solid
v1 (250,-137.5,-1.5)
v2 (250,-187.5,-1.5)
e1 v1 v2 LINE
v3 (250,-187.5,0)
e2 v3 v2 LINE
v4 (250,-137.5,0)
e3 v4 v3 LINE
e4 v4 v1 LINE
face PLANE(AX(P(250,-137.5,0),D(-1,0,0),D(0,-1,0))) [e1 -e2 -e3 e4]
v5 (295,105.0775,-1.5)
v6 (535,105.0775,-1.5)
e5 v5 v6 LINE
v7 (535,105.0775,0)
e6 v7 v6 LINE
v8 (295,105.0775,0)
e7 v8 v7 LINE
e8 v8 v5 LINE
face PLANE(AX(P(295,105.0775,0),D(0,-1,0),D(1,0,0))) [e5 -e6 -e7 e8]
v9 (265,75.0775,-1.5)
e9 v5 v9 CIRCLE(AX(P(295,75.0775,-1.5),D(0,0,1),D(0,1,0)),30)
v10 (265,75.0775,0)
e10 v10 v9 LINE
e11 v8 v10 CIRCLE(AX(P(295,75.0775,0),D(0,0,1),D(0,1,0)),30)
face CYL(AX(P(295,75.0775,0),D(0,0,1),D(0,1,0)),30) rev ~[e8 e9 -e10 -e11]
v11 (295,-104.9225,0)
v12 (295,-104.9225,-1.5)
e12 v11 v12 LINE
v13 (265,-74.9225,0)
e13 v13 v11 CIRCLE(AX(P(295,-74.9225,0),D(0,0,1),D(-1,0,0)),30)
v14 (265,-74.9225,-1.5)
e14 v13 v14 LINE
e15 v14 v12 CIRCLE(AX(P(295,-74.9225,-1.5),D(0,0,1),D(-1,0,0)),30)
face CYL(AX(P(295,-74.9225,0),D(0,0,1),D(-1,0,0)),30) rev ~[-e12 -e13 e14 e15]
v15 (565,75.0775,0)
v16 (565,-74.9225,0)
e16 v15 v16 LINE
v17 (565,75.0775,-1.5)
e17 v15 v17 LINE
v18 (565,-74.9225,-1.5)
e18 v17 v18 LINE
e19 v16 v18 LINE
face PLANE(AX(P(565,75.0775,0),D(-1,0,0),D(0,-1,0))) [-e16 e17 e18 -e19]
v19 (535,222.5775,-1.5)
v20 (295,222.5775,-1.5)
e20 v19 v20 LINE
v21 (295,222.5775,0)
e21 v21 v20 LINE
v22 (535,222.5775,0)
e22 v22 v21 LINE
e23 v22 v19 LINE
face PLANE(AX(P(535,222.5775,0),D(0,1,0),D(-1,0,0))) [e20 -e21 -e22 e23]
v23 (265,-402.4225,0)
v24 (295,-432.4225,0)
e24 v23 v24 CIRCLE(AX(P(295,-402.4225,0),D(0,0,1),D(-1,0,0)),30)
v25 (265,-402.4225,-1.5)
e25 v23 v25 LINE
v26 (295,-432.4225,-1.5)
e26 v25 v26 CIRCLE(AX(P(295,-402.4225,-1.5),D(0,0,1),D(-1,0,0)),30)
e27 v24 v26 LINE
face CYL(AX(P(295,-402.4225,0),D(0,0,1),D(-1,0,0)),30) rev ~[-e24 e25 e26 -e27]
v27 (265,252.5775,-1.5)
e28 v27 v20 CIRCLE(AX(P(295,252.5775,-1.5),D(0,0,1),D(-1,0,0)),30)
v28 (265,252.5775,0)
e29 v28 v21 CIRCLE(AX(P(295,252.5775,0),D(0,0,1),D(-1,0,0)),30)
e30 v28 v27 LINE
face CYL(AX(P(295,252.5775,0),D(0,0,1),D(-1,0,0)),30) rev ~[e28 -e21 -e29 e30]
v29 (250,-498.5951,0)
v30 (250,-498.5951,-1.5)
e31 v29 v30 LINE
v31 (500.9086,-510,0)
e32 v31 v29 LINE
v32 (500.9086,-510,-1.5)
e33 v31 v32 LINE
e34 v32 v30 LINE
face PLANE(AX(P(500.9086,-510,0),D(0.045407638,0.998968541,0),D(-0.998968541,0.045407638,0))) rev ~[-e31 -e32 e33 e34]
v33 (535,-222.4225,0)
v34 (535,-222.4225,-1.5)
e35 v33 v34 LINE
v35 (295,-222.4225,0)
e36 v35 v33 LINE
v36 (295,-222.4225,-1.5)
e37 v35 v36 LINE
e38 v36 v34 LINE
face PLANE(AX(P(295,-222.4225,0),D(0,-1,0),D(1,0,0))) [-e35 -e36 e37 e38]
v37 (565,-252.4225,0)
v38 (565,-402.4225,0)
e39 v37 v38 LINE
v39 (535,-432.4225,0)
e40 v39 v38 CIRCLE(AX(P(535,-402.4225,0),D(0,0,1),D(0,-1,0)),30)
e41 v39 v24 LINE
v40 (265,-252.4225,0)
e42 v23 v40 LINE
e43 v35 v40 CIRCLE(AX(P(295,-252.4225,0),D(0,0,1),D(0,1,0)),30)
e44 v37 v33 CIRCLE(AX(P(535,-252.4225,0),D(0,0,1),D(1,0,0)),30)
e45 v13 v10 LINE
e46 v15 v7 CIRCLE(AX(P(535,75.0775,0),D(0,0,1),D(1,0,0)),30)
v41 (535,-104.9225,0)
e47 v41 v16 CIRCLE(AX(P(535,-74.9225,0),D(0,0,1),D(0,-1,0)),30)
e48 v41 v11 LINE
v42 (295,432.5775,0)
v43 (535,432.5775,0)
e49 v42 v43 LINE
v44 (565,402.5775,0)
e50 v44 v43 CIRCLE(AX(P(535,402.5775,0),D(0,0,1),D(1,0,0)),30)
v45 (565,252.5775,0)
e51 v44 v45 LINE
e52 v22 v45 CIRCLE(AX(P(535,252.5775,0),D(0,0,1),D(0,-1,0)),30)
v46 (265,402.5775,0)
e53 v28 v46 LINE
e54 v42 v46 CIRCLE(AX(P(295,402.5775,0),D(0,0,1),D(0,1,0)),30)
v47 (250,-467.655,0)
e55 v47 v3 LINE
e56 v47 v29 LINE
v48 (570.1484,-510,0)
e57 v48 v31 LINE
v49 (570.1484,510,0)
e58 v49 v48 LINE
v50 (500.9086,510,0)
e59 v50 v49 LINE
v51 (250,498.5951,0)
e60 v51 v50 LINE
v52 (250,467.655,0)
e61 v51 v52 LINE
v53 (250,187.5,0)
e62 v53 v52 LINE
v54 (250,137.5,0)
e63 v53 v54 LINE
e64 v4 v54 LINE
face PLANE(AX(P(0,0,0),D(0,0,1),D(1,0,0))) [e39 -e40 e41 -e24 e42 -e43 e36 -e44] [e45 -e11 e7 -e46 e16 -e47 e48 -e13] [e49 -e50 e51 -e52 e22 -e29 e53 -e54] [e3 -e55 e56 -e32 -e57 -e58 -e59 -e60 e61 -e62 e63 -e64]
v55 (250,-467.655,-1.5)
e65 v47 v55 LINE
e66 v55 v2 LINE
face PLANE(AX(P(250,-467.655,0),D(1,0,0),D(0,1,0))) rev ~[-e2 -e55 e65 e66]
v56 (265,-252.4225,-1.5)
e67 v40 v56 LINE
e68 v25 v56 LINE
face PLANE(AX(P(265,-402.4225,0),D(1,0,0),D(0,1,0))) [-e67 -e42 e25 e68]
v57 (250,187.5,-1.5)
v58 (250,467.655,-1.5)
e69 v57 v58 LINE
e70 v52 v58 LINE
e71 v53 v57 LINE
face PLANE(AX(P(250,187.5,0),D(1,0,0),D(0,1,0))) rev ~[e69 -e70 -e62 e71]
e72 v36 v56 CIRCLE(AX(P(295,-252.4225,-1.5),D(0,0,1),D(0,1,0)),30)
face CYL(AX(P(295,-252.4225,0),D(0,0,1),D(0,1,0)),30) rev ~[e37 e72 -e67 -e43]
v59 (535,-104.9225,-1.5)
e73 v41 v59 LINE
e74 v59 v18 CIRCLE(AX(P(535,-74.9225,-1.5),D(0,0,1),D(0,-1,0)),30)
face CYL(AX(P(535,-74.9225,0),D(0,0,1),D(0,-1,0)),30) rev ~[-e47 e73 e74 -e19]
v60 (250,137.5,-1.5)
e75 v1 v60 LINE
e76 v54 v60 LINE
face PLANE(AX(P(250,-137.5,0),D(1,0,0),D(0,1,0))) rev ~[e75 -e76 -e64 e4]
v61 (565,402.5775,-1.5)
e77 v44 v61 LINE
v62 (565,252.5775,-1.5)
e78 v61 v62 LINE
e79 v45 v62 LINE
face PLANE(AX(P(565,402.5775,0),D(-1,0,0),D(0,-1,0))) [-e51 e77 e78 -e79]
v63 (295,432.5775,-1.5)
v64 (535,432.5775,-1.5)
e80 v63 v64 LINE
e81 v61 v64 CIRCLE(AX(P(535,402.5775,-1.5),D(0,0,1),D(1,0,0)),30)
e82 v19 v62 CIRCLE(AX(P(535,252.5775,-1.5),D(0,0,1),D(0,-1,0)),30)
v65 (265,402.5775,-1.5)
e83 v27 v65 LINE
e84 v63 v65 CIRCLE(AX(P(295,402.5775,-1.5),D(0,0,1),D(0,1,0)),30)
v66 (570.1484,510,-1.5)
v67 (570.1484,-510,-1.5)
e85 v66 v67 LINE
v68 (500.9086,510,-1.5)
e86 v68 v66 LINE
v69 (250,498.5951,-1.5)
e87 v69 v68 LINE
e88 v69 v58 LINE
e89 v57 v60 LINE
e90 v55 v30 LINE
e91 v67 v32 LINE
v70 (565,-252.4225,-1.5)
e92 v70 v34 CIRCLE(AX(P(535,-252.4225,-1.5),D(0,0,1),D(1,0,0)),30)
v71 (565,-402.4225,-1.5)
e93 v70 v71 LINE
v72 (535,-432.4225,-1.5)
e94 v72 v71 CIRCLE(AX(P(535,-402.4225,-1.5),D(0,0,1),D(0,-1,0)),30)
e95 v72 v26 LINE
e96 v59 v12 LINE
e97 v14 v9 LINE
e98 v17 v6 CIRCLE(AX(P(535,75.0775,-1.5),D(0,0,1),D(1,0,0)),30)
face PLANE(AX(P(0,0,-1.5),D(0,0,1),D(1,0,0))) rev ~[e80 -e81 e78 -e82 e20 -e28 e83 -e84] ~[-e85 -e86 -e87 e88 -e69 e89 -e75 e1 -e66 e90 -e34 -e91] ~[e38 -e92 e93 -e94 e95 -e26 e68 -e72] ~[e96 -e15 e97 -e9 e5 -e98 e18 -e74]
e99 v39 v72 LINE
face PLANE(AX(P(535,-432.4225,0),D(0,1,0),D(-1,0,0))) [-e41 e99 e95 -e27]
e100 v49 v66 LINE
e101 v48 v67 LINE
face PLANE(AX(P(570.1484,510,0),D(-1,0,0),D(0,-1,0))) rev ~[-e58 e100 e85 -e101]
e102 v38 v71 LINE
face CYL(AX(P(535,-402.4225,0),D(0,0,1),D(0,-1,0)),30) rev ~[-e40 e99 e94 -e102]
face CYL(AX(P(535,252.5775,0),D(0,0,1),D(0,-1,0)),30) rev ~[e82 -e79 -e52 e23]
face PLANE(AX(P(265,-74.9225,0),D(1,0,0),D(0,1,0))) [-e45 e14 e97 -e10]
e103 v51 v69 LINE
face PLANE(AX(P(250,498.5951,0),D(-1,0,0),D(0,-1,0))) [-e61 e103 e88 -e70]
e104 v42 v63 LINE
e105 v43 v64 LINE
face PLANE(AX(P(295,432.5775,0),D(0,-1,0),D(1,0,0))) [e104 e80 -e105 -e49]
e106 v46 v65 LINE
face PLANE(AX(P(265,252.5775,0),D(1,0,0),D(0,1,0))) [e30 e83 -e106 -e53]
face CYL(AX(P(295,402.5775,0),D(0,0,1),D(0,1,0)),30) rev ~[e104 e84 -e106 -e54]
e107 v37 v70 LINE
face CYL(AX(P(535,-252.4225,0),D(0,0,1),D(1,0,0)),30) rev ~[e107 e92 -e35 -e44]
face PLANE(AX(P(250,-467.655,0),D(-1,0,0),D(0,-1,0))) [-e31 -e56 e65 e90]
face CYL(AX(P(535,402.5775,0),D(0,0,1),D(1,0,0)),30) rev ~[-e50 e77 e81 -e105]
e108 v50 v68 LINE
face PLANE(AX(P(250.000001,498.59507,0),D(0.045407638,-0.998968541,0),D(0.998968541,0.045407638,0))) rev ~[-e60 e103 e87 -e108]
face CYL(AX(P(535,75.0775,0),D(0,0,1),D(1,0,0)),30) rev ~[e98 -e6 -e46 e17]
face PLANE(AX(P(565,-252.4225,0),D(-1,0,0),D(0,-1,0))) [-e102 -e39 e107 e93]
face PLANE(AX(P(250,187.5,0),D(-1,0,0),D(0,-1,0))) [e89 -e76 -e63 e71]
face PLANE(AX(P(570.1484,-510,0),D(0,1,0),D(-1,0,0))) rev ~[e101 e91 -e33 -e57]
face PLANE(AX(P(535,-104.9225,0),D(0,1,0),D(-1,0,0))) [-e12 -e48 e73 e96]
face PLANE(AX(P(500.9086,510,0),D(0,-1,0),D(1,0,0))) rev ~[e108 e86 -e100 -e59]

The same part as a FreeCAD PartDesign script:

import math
import FreeCAD as App
import Part
import Sketcher
Q = App.Units.Quantity


def add_polygon(sketch, points):
    """Adds a closed chain of lines whose ends are joined by coincident constraints."""
    first, n = sketch.GeometryCount, len(points)
    for a, b in zip(points, points[1:] + points[:1]):
        sketch.addGeometry(Part.LineSegment(App.Vector(*a, 0), App.Vector(*b, 0)), False)
    for i in range(n):
        sketch.addConstraint(Sketcher.Constraint("Coincident", first + i, 2, first + (i + 1) % n, 1))

doc = App.newDocument("Part")
body = doc.addObject("PartDesign::Body", "Body")

# Sketch on XY plane
sketch1 = body.newObject("Sketcher::SketchObject", "Sketch")
sketch1.AttachmentSupport = (doc.getObject("XY_Plane"), [""])
sketch1.MapMode = "FlatFace"
add_polygon(sketch1, [(250, 498.5951), (250.000001, -498.59507), (500.9086, -510), (570.1484, -510), (570.1484, 510), (500.9086, 510)])  # lines 0-5
sketch1.addGeometry(Part.ArcOfCircle(Part.Circle(App.Vector(535, -252.4225, 0), App.Vector(0, 0, 1), 30), math.radians(0), math.radians(90)), False)  # 6
sketch1.addGeometry(Part.LineSegment(App.Vector(565, -252.4225, 0), App.Vector(565, -402.4225, 0)), False)  # 7
sketch1.addGeometry(Part.ArcOfCircle(Part.Circle(App.Vector(535, -402.4225, 0), App.Vector(0, 0, 1), 30), math.radians(-90), math.radians(0)), False)  # 8
sketch1.addGeometry(Part.LineSegment(App.Vector(535, -432.4225, 0), App.Vector(295, -432.4225, 0)), False)  # 9
sketch1.addGeometry(Part.ArcOfCircle(Part.Circle(App.Vector(295, -402.4225, 0), App.Vector(0, 0, 1), 30), math.radians(180), math.radians(270)), False)  # 10
sketch1.addGeometry(Part.LineSegment(App.Vector(265, -402.4225, 0), App.Vector(265, -252.4225, 0)), False)  # 11
sketch1.addGeometry(Part.ArcOfCircle(Part.Circle(App.Vector(295, -252.4225, 0), App.Vector(0, 0, 1), 30), math.radians(90), math.radians(180)), False)  # 12
sketch1.addGeometry(Part.LineSegment(App.Vector(295, -222.4225, 0), App.Vector(535, -222.4225, 0)), False)  # 13
sketch1.addGeometry(Part.ArcOfCircle(Part.Circle(App.Vector(535, -74.9225, 0), App.Vector(0, 0, 1), 30), math.radians(-90), math.radians(0)), False)  # 14
sketch1.addGeometry(Part.LineSegment(App.Vector(535, -104.9225, 0), App.Vector(295, -104.9225, 0)), False)  # 15
sketch1.addGeometry(Part.ArcOfCircle(Part.Circle(App.Vector(295, -74.9225, 0), App.Vector(0, 0, 1), 30), math.radians(180), math.radians(270)), False)  # 16
sketch1.addGeometry(Part.LineSegment(App.Vector(265, -74.9225, 0), App.Vector(265, 75.0775, 0)), False)  # 17
sketch1.addGeometry(Part.ArcOfCircle(Part.Circle(App.Vector(295, 75.0775, 0), App.Vector(0, 0, 1), 30), math.radians(90), math.radians(180)), False)  # 18
sketch1.addGeometry(Part.LineSegment(App.Vector(295, 105.0775, 0), App.Vector(535, 105.0775, 0)), False)  # 19
sketch1.addGeometry(Part.ArcOfCircle(Part.Circle(App.Vector(535, 75.0775, 0), App.Vector(0, 0, 1), 30), math.radians(0), math.radians(90)), False)  # 20
sketch1.addGeometry(Part.LineSegment(App.Vector(565, 75.0775, 0), App.Vector(565, -74.9225, 0)), False)  # 21
sketch1.addGeometry(Part.ArcOfCircle(Part.Circle(App.Vector(535, 252.5775, 0), App.Vector(0, 0, 1), 30), math.radians(-90), math.radians(0)), False)  # 22
sketch1.addGeometry(Part.LineSegment(App.Vector(535, 222.5775, 0), App.Vector(295, 222.5775, 0)), False)  # 23
sketch1.addGeometry(Part.ArcOfCircle(Part.Circle(App.Vector(295, 252.5775, 0), App.Vector(0, 0, 1), 30), math.radians(180), math.radians(270)), False)  # 24
sketch1.addGeometry(Part.LineSegment(App.Vector(265, 252.5775, 0), App.Vector(265, 402.5775, 0)), False)  # 25
sketch1.addGeometry(Part.ArcOfCircle(Part.Circle(App.Vector(295, 402.5775, 0), App.Vector(0, 0, 1), 30), math.radians(90), math.radians(180)), False)  # 26
sketch1.addGeometry(Part.LineSegment(App.Vector(295, 432.5775, 0), App.Vector(535, 432.5775, 0)), False)  # 27
sketch1.addGeometry(Part.ArcOfCircle(Part.Circle(App.Vector(535, 402.5775, 0), App.Vector(0, 0, 1), 30), math.radians(0), math.radians(90)), False)  # 28
sketch1.addGeometry(Part.LineSegment(App.Vector(565, 402.5775, 0), App.Vector(565, 252.5775, 0)), False)  # 29
sketch1.addConstraint([
    Sketcher.Constraint("Tangent", 6, 1, 7, 1),
    Sketcher.Constraint("Tangent", 7, 2, 8, 2),
    Sketcher.Constraint("Tangent", 8, 1, 9, 1),
    Sketcher.Constraint("Tangent", 9, 2, 10, 2),
    Sketcher.Constraint("Tangent", 10, 1, 11, 1),
    Sketcher.Constraint("Tangent", 11, 2, 12, 2),
    Sketcher.Constraint("Tangent", 12, 1, 13, 1),
    Sketcher.Constraint("Tangent", 13, 2, 6, 2),
    Sketcher.Constraint("Tangent", 14, 1, 15, 1),
    Sketcher.Constraint("Tangent", 15, 2, 16, 2),
    Sketcher.Constraint("Tangent", 16, 1, 17, 1),
    Sketcher.Constraint("Tangent", 17, 2, 18, 2),
    Sketcher.Constraint("Tangent", 18, 1, 19, 1),
    Sketcher.Constraint("Tangent", 19, 2, 20, 2),
    Sketcher.Constraint("Tangent", 20, 1, 21, 1),
    Sketcher.Constraint("Tangent", 21, 2, 14, 2),
    Sketcher.Constraint("Tangent", 22, 1, 23, 1),
    Sketcher.Constraint("Tangent", 23, 2, 24, 2),
    Sketcher.Constraint("Tangent", 24, 1, 25, 1),
    Sketcher.Constraint("Tangent", 25, 2, 26, 2),
    Sketcher.Constraint("Tangent", 26, 1, 27, 1),
    Sketcher.Constraint("Tangent", 27, 2, 28, 2),
    Sketcher.Constraint("Tangent", 28, 1, 29, 1),
    Sketcher.Constraint("Tangent", 29, 2, 22, 2),
    Sketcher.Constraint("Vertical", 0),
    Sketcher.Constraint("Horizontal", 2),
    Sketcher.Constraint("Vertical", 3),
    Sketcher.Constraint("Horizontal", 4),
    Sketcher.Constraint("Vertical", 7),
    Sketcher.Constraint("Horizontal", 9),
    Sketcher.Constraint("Vertical", 11),
    Sketcher.Constraint("Horizontal", 13),
    Sketcher.Constraint("Horizontal", 15),
    Sketcher.Constraint("Vertical", 17),
    Sketcher.Constraint("Horizontal", 19),
    Sketcher.Constraint("Vertical", 21),
    Sketcher.Constraint("Horizontal", 23),
    Sketcher.Constraint("Vertical", 25),
    Sketcher.Constraint("Horizontal", 27),
    Sketcher.Constraint("Vertical", 29),
    Sketcher.Constraint("Equal", 6, 8),
    Sketcher.Constraint("Equal", 8, 10),
    Sketcher.Constraint("Equal", 10, 12),
    Sketcher.Constraint("Equal", 12, 14),
    Sketcher.Constraint("Equal", 14, 16),
    Sketcher.Constraint("Equal", 16, 18),
    Sketcher.Constraint("Equal", 18, 20),
    Sketcher.Constraint("Equal", 20, 22),
    Sketcher.Constraint("Equal", 22, 24),
    Sketcher.Constraint("Equal", 24, 26),
    Sketcher.Constraint("Equal", 26, 28),
    Sketcher.Constraint("Symmetric", 1, 2, 4, 2, -1),
    Sketcher.Constraint("Vertical", 8, 3, 14, 3),
    Sketcher.Constraint("Vertical", 12, 3, 16, 3),
    Sketcher.Constraint("Vertical", 20, 3, 22, 3),
    Sketcher.Constraint("Vertical", 18, 3, 24, 3),
    Sketcher.Constraint("Equal", 11, 17),
    Sketcher.Constraint("Equal", 21, 25),
    Sketcher.Constraint("Equal", 1, 5),
    Sketcher.Constraint("Radius", 6, Q("30 mm")),
    Sketcher.Constraint("DistanceX", 9, 2, 9, 1, Q("240 mm")),
    Sketcher.Constraint("DistanceY", 3, 1, 3, 2, Q("1020 mm")),
    Sketcher.Constraint("DistanceY", 7, 2, 7, 1, Q("150 mm")),
    Sketcher.Constraint("DistanceX", -1, 1, 6, 3, Q("535 mm")),
    Sketcher.Constraint("DistanceX", -1, 1, 0, 2, Q("250 mm")),
    Sketcher.Constraint("DistanceY", 6, 3, 22, 3, Q("505 mm")),
    Sketcher.Constraint("DistanceY", 6, 3, 14, 3, Q("177.5 mm")),
    Sketcher.Constraint("DistanceX", 2, 1, 2, 2, Q("69.2398 mm")),
    Sketcher.Constraint("DistanceY", 0, 2, 0, 1, Q("997.1902 mm")),
    Sketcher.Constraint("Distance", 1, Q("251.1677 mm")),
    Sketcher.Constraint("DistanceY", 6, 3, -1, 1, Q("252.4225 mm")),
])
pad1 = body.newObject("PartDesign::Pad", "Pad")
pad1.Profile = sketch1
pad1.Length = 1.5
pad1.Reversed = True

doc.recompute()
